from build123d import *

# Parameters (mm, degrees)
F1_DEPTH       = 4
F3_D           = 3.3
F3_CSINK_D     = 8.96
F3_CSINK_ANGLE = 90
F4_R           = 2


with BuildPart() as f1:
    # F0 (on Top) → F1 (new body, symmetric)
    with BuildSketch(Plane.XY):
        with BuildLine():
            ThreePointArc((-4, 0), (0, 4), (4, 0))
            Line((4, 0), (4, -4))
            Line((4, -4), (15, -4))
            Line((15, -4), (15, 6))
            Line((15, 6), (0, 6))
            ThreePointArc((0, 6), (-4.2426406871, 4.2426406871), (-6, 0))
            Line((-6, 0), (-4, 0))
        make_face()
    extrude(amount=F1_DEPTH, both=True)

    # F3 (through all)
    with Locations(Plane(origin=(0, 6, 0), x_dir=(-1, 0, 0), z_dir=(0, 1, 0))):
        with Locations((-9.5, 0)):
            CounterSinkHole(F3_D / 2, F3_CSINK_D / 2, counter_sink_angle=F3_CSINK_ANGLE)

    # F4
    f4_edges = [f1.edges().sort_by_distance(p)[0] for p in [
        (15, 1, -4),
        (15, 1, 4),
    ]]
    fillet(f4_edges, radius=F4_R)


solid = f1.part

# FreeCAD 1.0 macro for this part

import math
import FreeCAD as App
import Part
import Sketcher
from FreeCAD import Vector


def edges_at(feature, points):
    """Names of the edges that pass closest to the given points."""
    edges = feature.Shape.Edges
    near = lambda p: min(range(len(edges)), key=lambda i: edges[i].distToShape(Part.Vertex(*p))[0])
    return sorted({f"Edge{near(p) + 1}" for p in points})

doc = App.newDocument("Part")
body = doc.addObject("PartDesign::Body", "Body")

# Sketch on XY plane
sketch1 = doc.addObject("Sketcher::SketchObject", "Sketch")
body.addObject(sketch1)
sketch1.AttachmentSupport = (doc.XY_Plane, [""])
sketch1.MapMode = "FlatFace"
sketch1.addGeometry([
    Part.ArcOfCircle(Part.Circle(Vector(0, 0, 0), Vector(0, 0, 1), 4), math.radians(0), math.radians(180)),  # 0
    Part.LineSegment(Vector(4, 0, 0), Vector(4, -4, 0)),  # 1
    Part.LineSegment(Vector(4, -4, 0), Vector(15, -4, 0)),  # 2
    Part.LineSegment(Vector(15, -4, 0), Vector(15, 6, 0)),  # 3
    Part.LineSegment(Vector(15, 6, 0), Vector(0, 6, 0)),  # 4
    Part.ArcOfCircle(Part.Circle(Vector(0, 0, 0), Vector(0, 0, 1), 6), math.radians(90), math.radians(180)),  # 5
    Part.LineSegment(Vector(-6, 0, 0), Vector(-4, 0, 0)),  # 6
], False)
sketch1.addConstraint([
    Sketcher.Constraint("Tangent", 0, 1, 1, 1),
    Sketcher.Constraint("Coincident", 1, 2, 2, 1),
    Sketcher.Constraint("Coincident", 2, 2, 3, 1),
    Sketcher.Constraint("Coincident", 3, 2, 4, 1),
    Sketcher.Constraint("Tangent", 4, 2, 5, 1),
    Sketcher.Constraint("Coincident", 5, 2, 6, 1),
    Sketcher.Constraint("Coincident", 6, 2, 0, 2),
    Sketcher.Constraint("Vertical", 1),
    Sketcher.Constraint("Horizontal", 2),
    Sketcher.Constraint("Vertical", 3),
    Sketcher.Constraint("Horizontal", 4),
    Sketcher.Constraint("Horizontal", 6),
    Sketcher.Constraint("Coincident", 0, 3, -1, 1),
    Sketcher.Constraint("Coincident", 5, 3, -1, 1),
    Sketcher.Constraint("PointOnObject", 5, 2, -1),
    Sketcher.Constraint("Radius", 0, 4.0),
    Sketcher.Constraint("Radius", 5, 6.0),
    Sketcher.Constraint("DistanceX", 2, 1, 2, 2, 11.0),
    Sketcher.Constraint("DistanceY", 1, 2, 1, 1, 4.0),
])
pad1 = doc.addObject("PartDesign::Pad", "Pad")
body.addObject(pad1)
pad1.Profile = sketch1
pad1.Length = 8
pad1.Midplane = True

# Sketch on XZ plane
sketch2 = doc.addObject("Sketcher::SketchObject", "Sketch001")
body.addObject(sketch2)
sketch2.AttachmentSupport = (doc.XZ_Plane, [""])
sketch2.MapMode = "FlatFace"
sketch2.AttachmentOffset = App.Placement(Vector(0, 0, -6), App.Rotation())
sketch2.addGeometry(Part.Circle(Vector(9.5, 0, 0), Vector(0, 0, 1), 1.6), False)
sketch2.addConstraint([
    Sketcher.Constraint("PointOnObject", 0, 3, -1),
    Sketcher.Constraint("Diameter", 0, 3.3),
    Sketcher.Constraint("DistanceX", -1, 1, 0, 3, 9.5),
])
doc.recompute()
hole = doc.addObject("PartDesign::Hole", "Hole")
body.addObject(hole)
hole.Profile = sketch2
hole.ThreadType = "None"
hole.Diameter = 3.3
hole.DepthType = "ThroughAll"
hole.HoleCutType = "Countersink"
hole.HoleCutDiameter = 8.96
hole.HoleCutCountersinkAngle = 90
hole.Reversed = True
doc.recompute()

fillet = doc.addObject("PartDesign::Fillet", "Fillet")
body.addObject(fillet)
fillet.Base = (hole, edges_at(hole, [(15, 1, -4), (15, 1, 4)]))
fillet.Radius = 2

doc.recompute()
